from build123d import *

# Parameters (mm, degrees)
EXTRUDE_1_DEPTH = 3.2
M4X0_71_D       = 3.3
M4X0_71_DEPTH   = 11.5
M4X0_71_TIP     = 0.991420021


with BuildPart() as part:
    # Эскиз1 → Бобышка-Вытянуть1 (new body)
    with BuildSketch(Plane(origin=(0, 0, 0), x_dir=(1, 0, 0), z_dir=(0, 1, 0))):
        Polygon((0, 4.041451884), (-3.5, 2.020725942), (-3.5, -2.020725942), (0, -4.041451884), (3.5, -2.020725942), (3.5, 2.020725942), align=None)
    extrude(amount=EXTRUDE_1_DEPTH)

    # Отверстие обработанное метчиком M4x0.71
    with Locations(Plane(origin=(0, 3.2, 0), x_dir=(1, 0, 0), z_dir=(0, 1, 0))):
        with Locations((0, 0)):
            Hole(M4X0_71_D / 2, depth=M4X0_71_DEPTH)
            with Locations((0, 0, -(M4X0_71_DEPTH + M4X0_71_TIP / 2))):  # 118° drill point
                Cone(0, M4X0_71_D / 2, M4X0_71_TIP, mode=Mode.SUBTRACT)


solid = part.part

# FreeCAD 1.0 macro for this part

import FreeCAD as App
import Part
import Sketcher

V = App.Vector
Q = App.Units.Quantity

doc = App.newDocument("Part")
body = doc.addObject("PartDesign::Body", "Body")

sketch1 = body.newObject("Sketcher::SketchObject", "Sketch")
sketch1.AttachmentSupport = (doc.getObject("XZ_Plane"), [""])
sketch1.MapMode = "FlatFace"
sketch1.addGeometry(Part.LineSegment(V(0, -4, 0), V(-3.5, -2, 0)), False)
sketch1.addGeometry(Part.LineSegment(V(-3.5, -2, 0), V(-3.5, 2, 0)), False)
sketch1.addGeometry(Part.LineSegment(V(-3.5, 2, 0), V(0, 4, 0)), False)
sketch1.addGeometry(Part.LineSegment(V(0, 4, 0), V(3.5, 2, 0)), False)
sketch1.addGeometry(Part.LineSegment(V(3.5, 2, 0), V(3.5, -2, 0)), False)
sketch1.addGeometry(Part.LineSegment(V(3.5, -2, 0), V(0, -4, 0)), False)
sketch1.addConstraint(Sketcher.Constraint("Coincident", 0, 2, 1, 1))
sketch1.addConstraint(Sketcher.Constraint("Coincident", 1, 2, 2, 1))
sketch1.addConstraint(Sketcher.Constraint("Coincident", 2, 2, 3, 1))
sketch1.addConstraint(Sketcher.Constraint("Coincident", 3, 2, 4, 1))
sketch1.addConstraint(Sketcher.Constraint("Coincident", 4, 2, 5, 1))
sketch1.addConstraint(Sketcher.Constraint("Coincident", 5, 2, 0, 1))
sketch1.addConstraint(Sketcher.Constraint("Vertical", 1))
sketch1.addConstraint(Sketcher.Constraint("Vertical", 4))
sketch1.addConstraint(Sketcher.Constraint("Symmetric", 0, 2, 3, 2, -1, 1))
sketch1.addConstraint(Sketcher.Constraint("Symmetric", 2, 2, 5, 2, -1, 1))
sketch1.addConstraint(Sketcher.Constraint("PointOnObject", 2, 2, -2))
sketch1.addConstraint(Sketcher.Constraint("Parallel", 2, 5))
sketch1.addConstraint(Sketcher.Constraint("Horizontal", 1, 2, 3, 2))
sketch1.addConstraint(Sketcher.Constraint("Angle", 0, Q("150 deg")))
sketch1.addConstraint(Sketcher.Constraint("DistanceX", 1, 2, 3, 2, Q("7 mm")))
sketch1.addConstraint(Sketcher.Constraint("DistanceY", 1, 1, 1, 2, Q("4.041452 mm")))
pad1 = body.newObject("PartDesign::Pad", "Pad")
pad1.Profile = sketch1
pad1.Length = 3.2
pad1.Reversed = True

sketch2 = body.newObject("Sketcher::SketchObject", "Sketch001")
sketch2.AttachmentSupport = (doc.getObject("XZ_Plane"), [""])
sketch2.MapMode = "FlatFace"
sketch2.AttachmentOffset = App.Placement(V(0, 0, -3.2), App.Rotation())
sketch2.addGeometry(Part.Circle(V(0, 0, 0), V(0, 0, 1), 1.6), False)
sketch2.addConstraint(Sketcher.Constraint("Coincident", 0, 3, -1, 1))
sketch2.addConstraint(Sketcher.Constraint("Diameter", 0, Q("3.3 mm")))
doc.recompute()
hole = body.newObject("PartDesign::Hole", "Hole")
hole.Profile = sketch2
hole.ThreadType = "None"
hole.Diameter = 3.3
hole.DepthType = "Dimension"
hole.Depth = 11.5
hole.DrillPoint = "Angled"
hole.DrillPointAngle = 118
hole.Reversed = True

doc.recompute()
